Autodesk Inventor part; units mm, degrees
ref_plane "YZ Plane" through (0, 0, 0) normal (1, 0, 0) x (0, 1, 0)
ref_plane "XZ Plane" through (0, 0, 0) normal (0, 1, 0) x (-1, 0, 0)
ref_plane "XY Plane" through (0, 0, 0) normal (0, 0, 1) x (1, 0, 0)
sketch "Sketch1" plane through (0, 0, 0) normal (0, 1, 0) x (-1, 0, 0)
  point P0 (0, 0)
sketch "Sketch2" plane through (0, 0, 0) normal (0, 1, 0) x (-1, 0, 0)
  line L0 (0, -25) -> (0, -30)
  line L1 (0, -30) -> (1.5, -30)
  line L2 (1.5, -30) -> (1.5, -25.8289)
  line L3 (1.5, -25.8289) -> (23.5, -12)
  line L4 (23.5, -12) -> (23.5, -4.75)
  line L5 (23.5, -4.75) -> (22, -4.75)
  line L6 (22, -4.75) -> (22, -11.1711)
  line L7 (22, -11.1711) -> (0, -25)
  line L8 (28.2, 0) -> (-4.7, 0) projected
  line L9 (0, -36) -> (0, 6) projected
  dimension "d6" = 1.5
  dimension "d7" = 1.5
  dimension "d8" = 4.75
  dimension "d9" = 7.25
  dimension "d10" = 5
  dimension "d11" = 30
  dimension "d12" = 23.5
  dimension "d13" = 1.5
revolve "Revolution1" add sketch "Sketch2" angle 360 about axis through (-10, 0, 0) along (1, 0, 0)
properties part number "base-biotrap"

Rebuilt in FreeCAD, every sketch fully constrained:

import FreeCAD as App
import Part
import Sketcher

V = App.Vector
Q = App.Units.Quantity


def add_polygon(sketch, points):
    """Adds a closed chain of lines whose ends are joined by coincident constraints."""
    first, n = sketch.GeometryCount, len(points)
    for a, b in zip(points, points[1:] + points[:1]):
        sketch.addGeometry(Part.LineSegment(App.Vector(*a, 0), App.Vector(*b, 0)), False)
    for i in range(n):
        sketch.addConstraint(Sketcher.Constraint("Coincident", first + i, 2, first + (i + 1) % n, 1))

doc = App.newDocument("Part")
params = doc.addObject("Spreadsheet::Sheet", "Params")
for row, (alias, value) in enumerate([
    ("sketch1_height", "5 mm"),
    ("sketch1_width", "1.5 mm"),
    ("sketch1_height2", "7.25 mm"),
    ("revolution_angle", "360 deg"),
], start=1):
    params.set(f"A{row}", alias)
    params.set(f"B{row}", "=" + value)
    params.setAlias(f"B{row}", alias)

body = doc.addObject("PartDesign::Body", "Body")

# Sketch on XZ plane
sketch1 = doc.addObject("Sketcher::SketchObject", "Sketch")
body.addObject(sketch1)
sketch1.AttachmentSupport = (doc.XZ_Plane, [""])
sketch1.MapMode = "FlatFace"
add_polygon(sketch1, [(-22, -11.1711), (0, -25), (0, -30), (-1.5, -30), (-1.5, -25.8289), (-23.5, -12), (-23.5, -4.75), (-22, -4.75)])  # lines 0-7
sketch1.addConstraint(Sketcher.Constraint("Vertical", 1))
sketch1.addConstraint(Sketcher.Constraint("Horizontal", 2))
sketch1.addConstraint(Sketcher.Constraint("Vertical", 3))
sketch1.addConstraint(Sketcher.Constraint("Vertical", 5))
sketch1.addConstraint(Sketcher.Constraint("Horizontal", 6))
sketch1.addConstraint(Sketcher.Constraint("Vertical", 7))
sketch1.addConstraint(Sketcher.Constraint("PointOnObject", 0, 2, -2))
sketch1.addConstraint(Sketcher.Constraint("Parallel", 0, 4))
sketch1.addConstraint(Sketcher.Constraint("Equal", 2, 6))
sketch1.addConstraint(Sketcher.Constraint("DistanceY", 1, 2, 1, 1, Q("5 mm")))
sketch1.addConstraint(Sketcher.Constraint("DistanceX", 2, 2, 2, 1, Q("1.5 mm")))
sketch1.addConstraint(Sketcher.Constraint("DistanceY", 1, 2, -1, 1, Q("30 mm")))
sketch1.addConstraint(Sketcher.Constraint("DistanceY", 5, 1, 5, 2, Q("7.25 mm")))
sketch1.addConstraint(Sketcher.Constraint("DistanceX", 4, 2, -1, 1, Q("23.5 mm")))
sketch1.addConstraint(Sketcher.Constraint("DistanceY", 5, 2, -1, 1, Q("4.75 mm")))
sketch1.addConstraint(Sketcher.Constraint("DistanceY", 3, 1, 3, 2, Q("4.171 mm")))
sketch1.setExpression("Constraints[17]", "Params.sketch1_height")
sketch1.setExpression("Constraints[18]", "Params.sketch1_width")
sketch1.setExpression("Constraints[20]", "Params.sketch1_height2")
revolution = doc.addObject("PartDesign::Revolution", "Revolution")
body.addObject(revolution)
revolution.Profile = sketch1
revolution.ReferenceAxis = (sketch1, ["H_Axis"])
revolution.setExpression("Angle", "Params.revolution_angle")

doc.recompute()
